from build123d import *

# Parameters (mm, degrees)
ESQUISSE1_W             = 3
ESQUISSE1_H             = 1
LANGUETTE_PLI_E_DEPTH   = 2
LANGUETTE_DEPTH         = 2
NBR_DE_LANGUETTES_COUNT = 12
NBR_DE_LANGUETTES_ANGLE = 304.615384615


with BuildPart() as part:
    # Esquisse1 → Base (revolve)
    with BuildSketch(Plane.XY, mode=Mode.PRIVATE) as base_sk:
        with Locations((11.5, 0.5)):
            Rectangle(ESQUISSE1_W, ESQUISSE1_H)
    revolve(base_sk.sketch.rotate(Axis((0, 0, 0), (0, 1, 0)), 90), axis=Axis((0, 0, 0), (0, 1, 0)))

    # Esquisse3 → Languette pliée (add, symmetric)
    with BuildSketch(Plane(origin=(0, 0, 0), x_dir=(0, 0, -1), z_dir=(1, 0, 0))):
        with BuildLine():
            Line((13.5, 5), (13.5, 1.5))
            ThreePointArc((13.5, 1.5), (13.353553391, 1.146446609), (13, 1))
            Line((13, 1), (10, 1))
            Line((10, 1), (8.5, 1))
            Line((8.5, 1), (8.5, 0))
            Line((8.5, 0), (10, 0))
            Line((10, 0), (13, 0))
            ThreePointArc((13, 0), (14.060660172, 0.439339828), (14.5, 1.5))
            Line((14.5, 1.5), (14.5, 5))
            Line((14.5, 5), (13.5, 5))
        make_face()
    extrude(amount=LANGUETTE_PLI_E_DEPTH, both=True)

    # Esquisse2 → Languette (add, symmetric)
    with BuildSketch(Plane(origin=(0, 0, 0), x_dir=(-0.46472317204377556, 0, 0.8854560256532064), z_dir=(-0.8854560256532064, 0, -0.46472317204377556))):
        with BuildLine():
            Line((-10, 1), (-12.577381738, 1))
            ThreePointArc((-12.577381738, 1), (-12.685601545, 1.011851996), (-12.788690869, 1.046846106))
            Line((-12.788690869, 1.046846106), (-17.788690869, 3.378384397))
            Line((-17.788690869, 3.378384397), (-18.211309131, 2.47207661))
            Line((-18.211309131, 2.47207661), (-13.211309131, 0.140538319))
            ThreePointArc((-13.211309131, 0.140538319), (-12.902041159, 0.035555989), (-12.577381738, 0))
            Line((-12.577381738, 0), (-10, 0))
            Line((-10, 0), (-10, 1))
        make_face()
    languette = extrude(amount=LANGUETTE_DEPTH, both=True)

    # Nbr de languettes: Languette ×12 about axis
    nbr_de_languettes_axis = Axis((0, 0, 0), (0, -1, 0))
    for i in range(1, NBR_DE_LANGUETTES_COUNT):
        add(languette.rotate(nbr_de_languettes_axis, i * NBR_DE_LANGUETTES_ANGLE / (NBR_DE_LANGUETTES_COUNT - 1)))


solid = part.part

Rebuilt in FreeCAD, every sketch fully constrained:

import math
import FreeCAD as App
import Part
import Sketcher

V = App.Vector
Q = App.Units.Quantity

doc = App.newDocument("Part")
body = doc.addObject("PartDesign::Body", "Body")

# Sketch on XY plane
sketch1 = body.newObject("Sketcher::SketchObject", "Sketch")
sketch1.AttachmentSupport = (doc.getObject("XY_Plane"), [""])
sketch1.MapMode = "FlatFace"
sketch1.addGeometry([
    Part.LineSegment(V(10, 1, 0), V(10, 0, 0)),
    Part.LineSegment(V(10, 0, 0), V(13, 0, 0)),
    Part.LineSegment(V(13, 0, 0), V(13, 1, 0)),
    Part.LineSegment(V(13, 1, 0), V(10, 1, 0)),
], False)
sketch1.addConstraint([
    Sketcher.Constraint("Coincident", 0, 2, 1, 1),
    Sketcher.Constraint("Coincident", 1, 2, 2, 1),
    Sketcher.Constraint("Coincident", 2, 2, 3, 1),
    Sketcher.Constraint("Coincident", 3, 2, 0, 1),
    Sketcher.Constraint("Vertical", 0),
    Sketcher.Constraint("Horizontal", 1),
    Sketcher.Constraint("Vertical", 2),
    Sketcher.Constraint("Horizontal", 3),
    Sketcher.Constraint("PointOnObject", 0, 2, -1),
    Sketcher.Constraint("DistanceX", 1, 1, 1, 2, Q("3 mm")),
    Sketcher.Constraint("DistanceY", 0, 2, 0, 1, Q("1 mm")),
    Sketcher.Constraint("DistanceX", -1, 1, 0, 2, Q("10 mm")),
])
revolution = body.newObject("PartDesign::Revolution", "Revolution")
revolution.Profile = sketch1
revolution.ReferenceAxis = (sketch1, ["V_Axis"])
revolution.Angle = 360

# Sketch on YZ plane
sketch2 = body.newObject("Sketcher::SketchObject", "Sketch001")
sketch2.AttachmentSupport = (doc.getObject("YZ_Plane"), [""])
sketch2.MapMode = "FlatFace"
sketch2.addGeometry([
    Part.LineSegment(V(5, -13.5, 0), V(1.5, -13.5, 0)),  # 0
    Part.ArcOfCircle(Part.Circle(V(1.5, -13, 0), V(0, 0, 1), 0.5), math.radians(180), math.radians(270)),  # 1
    Part.LineSegment(V(1, -13, 0), V(1, -8.5, 0)),  # 2
    Part.LineSegment(V(1, -8.5, 0), V(0, -8.5, 0)),  # 3
    Part.LineSegment(V(0, -8.5, 0), V(0, -13, 0)),  # 4
    Part.ArcOfCircle(Part.Circle(V(1.5, -13, 0), V(0, 0, 1), 1.5), math.radians(180), math.radians(270)),  # 5
    Part.LineSegment(V(1.5, -14.5, 0), V(5, -14.5, 0)),  # 6
    Part.LineSegment(V(5, -14.5, 0), V(5, -13.5, 0)),  # 7
], False)
sketch2.addConstraint([
    Sketcher.Constraint("Tangent", 0, 2, 1, 2),
    Sketcher.Constraint("Tangent", 1, 1, 2, 1),
    Sketcher.Constraint("Coincident", 2, 2, 3, 1),
    Sketcher.Constraint("Coincident", 3, 2, 4, 1),
    Sketcher.Constraint("Tangent", 4, 2, 5, 1),
    Sketcher.Constraint("Tangent", 5, 2, 6, 1),
    Sketcher.Constraint("Coincident", 6, 2, 7, 1),
    Sketcher.Constraint("Coincident", 7, 2, 0, 1),
    Sketcher.Constraint("Horizontal", 0),
    Sketcher.Constraint("Vertical", 2),
    Sketcher.Constraint("Horizontal", 3),
    Sketcher.Constraint("Vertical", 4),
    Sketcher.Constraint("Horizontal", 6),
    Sketcher.Constraint("Vertical", 7),
    Sketcher.Constraint("Coincident", 5, 3, 1, 3),
    Sketcher.Constraint("PointOnObject", 3, 2, -2),
    Sketcher.Constraint("Radius", 1, Q("0.5 mm")),
    Sketcher.Constraint("Radius", 5, Q("1.5 mm")),
    Sketcher.Constraint("DistanceX", 0, 2, 0, 1, Q("3.5 mm")),
    Sketcher.Constraint("DistanceY", 2, 1, 2, 2, Q("4.5 mm")),
    Sketcher.Constraint("DistanceY", 1, 3, -1, 1, Q("13 mm")),
])
pad1 = body.newObject("PartDesign::Pad", "Pad")
pad1.Profile = sketch2
pad1.Length = 4
pad1.Midplane = True

# Sketch on an angled plane
sketch3 = body.newObject("Sketcher::SketchObject", "Sketch002")
sketch3.Placement = App.Placement(V(0, 0, 0), App.Rotation(V(-0.464723172, 0, 0.885456026), V(0, 1.000000001, 0), V(-0.885456026, 0, -0.464723172), "ZXY"))
sketch3.addGeometry([
    Part.LineSegment(V(-10, 1, 0), V(-12.58, 1, 0)),  # 0
    Part.ArcOfCircle(Part.Circle(V(-12.58, 1.5, 0), V(0, 0, 1), 0.5), math.radians(-115), math.radians(-90)),  # 1
    Part.LineSegment(V(-12.79, 1.05, 0), V(-17.79, 3.38, 0)),  # 2
    Part.LineSegment(V(-17.79, 3.38, 0), V(-18.21, 2.47, 0)),  # 3
    Part.LineSegment(V(-18.21, 2.47, 0), V(-13.21, 0.14, 0)),  # 4
    Part.ArcOfCircle(Part.Circle(V(-12.58, 1.5, 0), V(0, 0, 1), 1.5), math.radians(-115), math.radians(-90)),  # 5
    Part.LineSegment(V(-12.58, 0, 0), V(-10, 0, 0)),  # 6
    Part.LineSegment(V(-10, 0, 0), V(-10, 1, 0)),  # 7
], False)
sketch3.addConstraint([
    Sketcher.Constraint("Tangent", 0, 2, 1, 2),
    Sketcher.Constraint("Tangent", 1, 1, 2, 1),
    Sketcher.Constraint("Coincident", 2, 2, 3, 1),
    Sketcher.Constraint("Coincident", 3, 2, 4, 1),
    Sketcher.Constraint("Tangent", 4, 2, 5, 1),
    Sketcher.Constraint("Tangent", 5, 2, 6, 1),
    Sketcher.Constraint("Coincident", 6, 2, 7, 1),
    Sketcher.Constraint("Coincident", 7, 2, 0, 1),
    Sketcher.Constraint("Horizontal", 0),
    Sketcher.Constraint("Horizontal", 6),
    Sketcher.Constraint("Vertical", 7),
    Sketcher.Constraint("Coincident", 5, 3, 1, 3),
    Sketcher.Constraint("PointOnObject", 5, 2, -1),
    Sketcher.Constraint("Perpendicular", 2, 3),
    Sketcher.Constraint("Perpendicular", 3, 4),
    Sketcher.Constraint("Radius", 1, Q("0.5 mm")),
    Sketcher.Constraint("Radius", 5, Q("1.5 mm")),
    Sketcher.Constraint("Angle", 2, Q("155 deg")),
    Sketcher.Constraint("DistanceX", 6, 2, -1, 1, Q("10 mm")),
    Sketcher.Constraint("DistanceX", 2, 2, 1, 1, Q("5 mm")),
    Sketcher.Constraint("DistanceX", 0, 2, 0, 1, Q("2.577382 mm")),
])
pad2 = body.newObject("PartDesign::Pad", "Pad001")
pad2.Profile = sketch3
pad2.Length = 4
pad2.Midplane = True
doc.recompute()

polarpattern = body.newObject("PartDesign::PolarPattern", "PolarPattern")
polarpattern.Originals = [pad2]
polarpattern.Axis = (doc.getObject("Y_Axis"), [""])
polarpattern.Angle = 304.615385
polarpattern.Occurrences = 12
polarpattern.Reversed = True
body.Tip = polarpattern

doc.recompute()
